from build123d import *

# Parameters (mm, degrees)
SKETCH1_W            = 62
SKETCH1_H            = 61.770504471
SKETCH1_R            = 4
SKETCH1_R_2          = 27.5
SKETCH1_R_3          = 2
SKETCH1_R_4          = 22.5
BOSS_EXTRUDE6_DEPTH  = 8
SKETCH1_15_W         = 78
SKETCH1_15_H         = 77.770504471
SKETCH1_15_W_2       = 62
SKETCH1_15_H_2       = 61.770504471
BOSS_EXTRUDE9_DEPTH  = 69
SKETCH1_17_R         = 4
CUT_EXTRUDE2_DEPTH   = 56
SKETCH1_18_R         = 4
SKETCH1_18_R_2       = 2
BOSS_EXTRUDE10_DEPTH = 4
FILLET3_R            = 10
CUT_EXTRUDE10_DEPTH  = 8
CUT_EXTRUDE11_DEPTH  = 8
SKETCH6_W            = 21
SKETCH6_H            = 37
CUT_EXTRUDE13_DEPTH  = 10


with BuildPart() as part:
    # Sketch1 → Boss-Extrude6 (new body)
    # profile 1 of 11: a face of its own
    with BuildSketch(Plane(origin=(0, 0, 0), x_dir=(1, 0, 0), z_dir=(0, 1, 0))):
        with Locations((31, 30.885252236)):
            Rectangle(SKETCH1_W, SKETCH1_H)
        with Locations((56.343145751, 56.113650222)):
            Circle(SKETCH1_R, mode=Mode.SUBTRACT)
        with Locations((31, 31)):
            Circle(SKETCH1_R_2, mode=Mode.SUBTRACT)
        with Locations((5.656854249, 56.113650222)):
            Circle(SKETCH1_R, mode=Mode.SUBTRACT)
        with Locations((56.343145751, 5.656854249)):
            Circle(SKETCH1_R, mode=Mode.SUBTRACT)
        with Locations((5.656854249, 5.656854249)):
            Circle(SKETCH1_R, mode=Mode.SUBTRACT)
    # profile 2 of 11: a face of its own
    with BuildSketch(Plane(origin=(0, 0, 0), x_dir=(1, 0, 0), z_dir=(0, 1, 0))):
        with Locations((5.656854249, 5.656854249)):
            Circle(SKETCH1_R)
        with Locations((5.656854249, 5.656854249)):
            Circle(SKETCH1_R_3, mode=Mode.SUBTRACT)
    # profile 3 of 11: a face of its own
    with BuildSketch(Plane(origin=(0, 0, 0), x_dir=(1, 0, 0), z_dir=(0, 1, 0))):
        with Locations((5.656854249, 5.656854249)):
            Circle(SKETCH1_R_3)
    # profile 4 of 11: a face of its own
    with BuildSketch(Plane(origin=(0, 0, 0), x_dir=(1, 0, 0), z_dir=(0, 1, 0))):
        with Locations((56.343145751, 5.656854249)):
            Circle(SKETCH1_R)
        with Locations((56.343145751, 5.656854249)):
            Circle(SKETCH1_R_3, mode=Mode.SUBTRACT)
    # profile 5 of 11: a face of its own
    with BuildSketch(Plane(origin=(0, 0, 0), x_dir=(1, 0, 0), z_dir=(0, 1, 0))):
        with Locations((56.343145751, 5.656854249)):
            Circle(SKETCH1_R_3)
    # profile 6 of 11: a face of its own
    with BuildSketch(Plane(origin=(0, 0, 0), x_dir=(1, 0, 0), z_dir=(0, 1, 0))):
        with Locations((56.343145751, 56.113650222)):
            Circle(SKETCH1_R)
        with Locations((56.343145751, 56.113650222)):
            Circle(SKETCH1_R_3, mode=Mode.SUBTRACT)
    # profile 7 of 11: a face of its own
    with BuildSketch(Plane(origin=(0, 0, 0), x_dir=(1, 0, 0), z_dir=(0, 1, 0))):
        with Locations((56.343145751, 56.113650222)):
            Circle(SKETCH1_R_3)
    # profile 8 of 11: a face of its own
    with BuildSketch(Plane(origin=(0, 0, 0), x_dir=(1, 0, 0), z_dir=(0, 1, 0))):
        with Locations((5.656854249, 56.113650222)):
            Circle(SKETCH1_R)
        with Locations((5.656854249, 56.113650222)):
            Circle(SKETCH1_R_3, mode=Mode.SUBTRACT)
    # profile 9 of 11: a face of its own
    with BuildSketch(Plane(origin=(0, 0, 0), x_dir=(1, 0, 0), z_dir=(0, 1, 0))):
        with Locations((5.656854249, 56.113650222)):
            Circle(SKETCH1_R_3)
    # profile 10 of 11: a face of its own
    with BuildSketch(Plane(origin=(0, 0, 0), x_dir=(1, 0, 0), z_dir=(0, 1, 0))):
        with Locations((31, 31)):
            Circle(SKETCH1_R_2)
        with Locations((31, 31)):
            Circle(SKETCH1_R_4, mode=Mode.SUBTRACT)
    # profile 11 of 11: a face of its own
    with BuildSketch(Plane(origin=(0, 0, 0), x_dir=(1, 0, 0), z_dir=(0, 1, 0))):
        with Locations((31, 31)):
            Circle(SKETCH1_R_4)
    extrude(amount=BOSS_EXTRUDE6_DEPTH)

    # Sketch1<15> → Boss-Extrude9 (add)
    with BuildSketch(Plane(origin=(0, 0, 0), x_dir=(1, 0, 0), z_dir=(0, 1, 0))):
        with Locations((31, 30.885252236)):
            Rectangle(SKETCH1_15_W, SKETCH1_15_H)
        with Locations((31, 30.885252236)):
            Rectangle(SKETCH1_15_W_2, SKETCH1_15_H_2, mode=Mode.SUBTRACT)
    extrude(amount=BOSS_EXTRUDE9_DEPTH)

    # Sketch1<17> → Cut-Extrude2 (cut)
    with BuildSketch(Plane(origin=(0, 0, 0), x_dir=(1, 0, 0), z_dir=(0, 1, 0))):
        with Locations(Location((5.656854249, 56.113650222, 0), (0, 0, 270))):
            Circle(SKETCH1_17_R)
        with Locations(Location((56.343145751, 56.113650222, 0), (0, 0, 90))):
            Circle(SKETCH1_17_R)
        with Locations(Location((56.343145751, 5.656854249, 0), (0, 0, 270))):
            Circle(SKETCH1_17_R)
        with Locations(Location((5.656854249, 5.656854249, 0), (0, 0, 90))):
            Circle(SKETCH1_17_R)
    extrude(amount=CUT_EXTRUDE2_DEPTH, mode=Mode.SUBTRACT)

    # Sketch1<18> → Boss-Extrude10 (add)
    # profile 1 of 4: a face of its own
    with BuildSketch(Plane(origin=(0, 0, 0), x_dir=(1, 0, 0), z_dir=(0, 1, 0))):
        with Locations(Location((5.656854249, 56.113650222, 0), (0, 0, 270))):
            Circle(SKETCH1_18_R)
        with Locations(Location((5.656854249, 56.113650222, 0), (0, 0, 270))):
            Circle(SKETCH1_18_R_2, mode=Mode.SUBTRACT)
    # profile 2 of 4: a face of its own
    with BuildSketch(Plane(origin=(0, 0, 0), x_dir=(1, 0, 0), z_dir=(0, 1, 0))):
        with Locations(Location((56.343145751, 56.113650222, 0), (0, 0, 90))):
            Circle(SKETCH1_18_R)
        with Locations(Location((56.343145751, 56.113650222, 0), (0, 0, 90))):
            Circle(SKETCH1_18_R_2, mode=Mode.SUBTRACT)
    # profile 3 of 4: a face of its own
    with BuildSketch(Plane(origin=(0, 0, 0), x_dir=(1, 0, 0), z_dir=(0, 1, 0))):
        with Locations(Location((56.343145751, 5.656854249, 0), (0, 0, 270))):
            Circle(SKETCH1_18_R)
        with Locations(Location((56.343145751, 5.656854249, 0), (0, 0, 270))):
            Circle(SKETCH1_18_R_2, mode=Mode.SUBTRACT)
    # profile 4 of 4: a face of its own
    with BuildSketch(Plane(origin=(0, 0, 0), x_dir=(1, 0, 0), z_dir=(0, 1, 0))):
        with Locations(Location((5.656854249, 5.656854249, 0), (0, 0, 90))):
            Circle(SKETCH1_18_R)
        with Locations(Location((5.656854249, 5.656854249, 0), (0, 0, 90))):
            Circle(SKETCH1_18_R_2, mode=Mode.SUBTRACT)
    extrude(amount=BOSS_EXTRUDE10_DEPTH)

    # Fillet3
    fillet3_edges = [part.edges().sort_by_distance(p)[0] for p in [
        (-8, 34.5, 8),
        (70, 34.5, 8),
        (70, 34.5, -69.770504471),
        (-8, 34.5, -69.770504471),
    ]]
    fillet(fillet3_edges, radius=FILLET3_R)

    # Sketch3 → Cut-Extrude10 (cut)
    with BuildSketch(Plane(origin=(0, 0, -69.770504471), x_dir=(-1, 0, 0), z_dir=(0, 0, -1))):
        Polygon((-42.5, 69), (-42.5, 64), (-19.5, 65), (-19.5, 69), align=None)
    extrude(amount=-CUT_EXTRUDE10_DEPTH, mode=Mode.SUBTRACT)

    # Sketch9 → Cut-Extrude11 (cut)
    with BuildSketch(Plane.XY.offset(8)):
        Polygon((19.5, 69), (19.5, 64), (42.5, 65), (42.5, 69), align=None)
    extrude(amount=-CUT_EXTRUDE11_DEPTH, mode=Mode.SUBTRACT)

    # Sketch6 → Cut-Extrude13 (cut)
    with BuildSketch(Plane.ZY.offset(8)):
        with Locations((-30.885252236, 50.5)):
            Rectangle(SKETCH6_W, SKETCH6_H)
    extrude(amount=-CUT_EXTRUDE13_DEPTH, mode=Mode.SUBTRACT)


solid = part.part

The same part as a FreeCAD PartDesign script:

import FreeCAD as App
import Part
import Sketcher
from FreeCAD import Vector
Q = App.Units.Quantity


def edges_at(feature, points):
    """Names of the edges that pass closest to the given points."""
    edges = feature.Shape.Edges
    near = lambda p: min(range(len(edges)), key=lambda i: edges[i].distToShape(Part.Vertex(*p))[0])
    return sorted({f"Edge{near(p) + 1}" for p in points})


def add_polygon(sketch, points):
    """Adds a closed chain of lines whose ends are joined by coincident constraints."""
    first, n = sketch.GeometryCount, len(points)
    for a, b in zip(points, points[1:] + points[:1]):
        sketch.addGeometry(Part.LineSegment(App.Vector(*a, 0), App.Vector(*b, 0)), False)
    for i in range(n):
        sketch.addConstraint(Sketcher.Constraint("Coincident", first + i, 2, first + (i + 1) % n, 1))

doc = App.newDocument("Part")
body = doc.addObject("PartDesign::Body", "Body")

# Sketch on XZ plane
sketch1 = doc.addObject("Sketcher::SketchObject", "Sketch")
body.addObject(sketch1)
sketch1.AttachmentSupport = (doc.XZ_Plane, [""])
sketch1.MapMode = "FlatFace"
add_polygon(sketch1, [(0, -61.770504), (0, 0), (62, 0), (62, -61.770504)])  # lines 0-3
sketch1.addConstraint(Sketcher.Constraint("Vertical", 0))
sketch1.addConstraint(Sketcher.Constraint("Horizontal", 1))
sketch1.addConstraint(Sketcher.Constraint("Vertical", 2))
sketch1.addConstraint(Sketcher.Constraint("Horizontal", 3))
sketch1.addConstraint(Sketcher.Constraint("Coincident", 0, 2, -1, 1))
sketch1.addConstraint(Sketcher.Constraint("DistanceX", 1, 1, 1, 2, Q("62 mm")))
sketch1.addConstraint(Sketcher.Constraint("DistanceY", 0, 1, 0, 2, Q("61.770504 mm")))
pad1 = doc.addObject("PartDesign::Pad", "Pad")
body.addObject(pad1)
pad1.Profile = sketch1
pad1.Length = 8
pad1.Reversed = True

# Sketch on XZ plane
sketch2 = doc.addObject("Sketcher::SketchObject", "Sketch001")
body.addObject(sketch2)
sketch2.AttachmentSupport = (doc.XZ_Plane, [""])
sketch2.MapMode = "FlatFace"
add_polygon(sketch2, [(-8, -69.770504), (-8, 8), (70, 8), (70, -69.770504)])  # lines 0-3
add_polygon(sketch2, [(62, 0), (0, 0), (0, -61.770504), (62, -61.770504)])  # lines 4-7
sketch2.addConstraint(Sketcher.Constraint("Vertical", 0))
sketch2.addConstraint(Sketcher.Constraint("Horizontal", 1))
sketch2.addConstraint(Sketcher.Constraint("Vertical", 2))
sketch2.addConstraint(Sketcher.Constraint("Horizontal", 3))
sketch2.addConstraint(Sketcher.Constraint("Horizontal", 4))
sketch2.addConstraint(Sketcher.Constraint("Vertical", 5))
sketch2.addConstraint(Sketcher.Constraint("Horizontal", 6))
sketch2.addConstraint(Sketcher.Constraint("Vertical", 7))
sketch2.addConstraint(Sketcher.Constraint("Coincident", 4, 2, -1, 1))
sketch2.addConstraint(Sketcher.Constraint("DistanceX", 1, 1, 1, 2, Q("78 mm")))
sketch2.addConstraint(Sketcher.Constraint("DistanceX", 4, 2, 4, 1, Q("62 mm")))
sketch2.addConstraint(Sketcher.Constraint("DistanceX", 0, 2, -1, 1, Q("8 mm")))
sketch2.addConstraint(Sketcher.Constraint("DistanceY", -1, 1, 0, 2, Q("8 mm")))
sketch2.addConstraint(Sketcher.Constraint("DistanceY", 3, 2, 5, 2, Q("8 mm")))
sketch2.addConstraint(Sketcher.Constraint("DistanceY", 0, 1, 0, 2, Q("77.770504 mm")))
pad2 = doc.addObject("PartDesign::Pad", "Pad001")
body.addObject(pad2)
pad2.Profile = sketch2
pad2.Length = 69
pad2.Reversed = True

# Sketch on XZ plane
sketch3 = doc.addObject("Sketcher::SketchObject", "Sketch002")
body.addObject(sketch3)
sketch3.AttachmentSupport = (doc.XZ_Plane, [""])
sketch3.MapMode = "FlatFace"
sketch3.addGeometry(Part.Circle(Vector(5.656854, -56.11365, 0), Vector(0, 0, 1), 4), False)
sketch3.addGeometry(Part.Circle(Vector(56.343146, -56.11365, 0), Vector(0, 0, 1), 4), False)
sketch3.addGeometry(Part.Circle(Vector(56.343146, -5.656854, 0), Vector(0, 0, 1), 4), False)
sketch3.addGeometry(Part.Circle(Vector(5.656854, -5.656854, 0), Vector(0, 0, 1), 4), False)
sketch3.addConstraint(Sketcher.Constraint("Equal", 0, 1))
sketch3.addConstraint(Sketcher.Constraint("Equal", 1, 2))
sketch3.addConstraint(Sketcher.Constraint("Equal", 2, 3))
sketch3.addConstraint(Sketcher.Constraint("Horizontal", 0, 3, 1, 3))
sketch3.addConstraint(Sketcher.Constraint("Horizontal", 2, 3, 3, 3))
sketch3.addConstraint(Sketcher.Constraint("Vertical", 1, 3, 2, 3))
sketch3.addConstraint(Sketcher.Constraint("Vertical", 0, 3, 3, 3))
sketch3.addConstraint(Sketcher.Constraint("Diameter", 0, Q("8 mm")))
sketch3.addConstraint(Sketcher.Constraint("DistanceY", 0, 3, -1, 1, Q("56.11365 mm")))
sketch3.addConstraint(Sketcher.Constraint("DistanceX", 0, 3, 1, 3, Q("50.686292 mm")))
sketch3.addConstraint(Sketcher.Constraint("DistanceX", -1, 1, 0, 3, Q("5.656854 mm")))
sketch3.addConstraint(Sketcher.Constraint("DistanceY", 2, 3, -1, 1, Q("5.656854 mm")))
pocket1 = doc.addObject("PartDesign::Pocket", "Pocket")
body.addObject(pocket1)
pocket1.Profile = sketch3
pocket1.Length = 56

# Sketch on XZ plane
sketch4 = doc.addObject("Sketcher::SketchObject", "Sketch003")
body.addObject(sketch4)
sketch4.AttachmentSupport = (doc.XZ_Plane, [""])
sketch4.MapMode = "FlatFace"
sketch4.addGeometry(Part.Circle(Vector(5.656854, -56.11365, 0), Vector(0, 0, 1), 4), False)
sketch4.addGeometry(Part.Circle(Vector(5.656854, -56.11365, 0), Vector(0, 0, 1), 2), False)
sketch4.addGeometry(Part.Circle(Vector(56.343146, -56.11365, 0), Vector(0, 0, 1), 4), False)
sketch4.addGeometry(Part.Circle(Vector(56.343146, -56.11365, 0), Vector(0, 0, 1), 2), False)
sketch4.addGeometry(Part.Circle(Vector(56.343146, -5.656854, 0), Vector(0, 0, 1), 4), False)
sketch4.addGeometry(Part.Circle(Vector(56.343146, -5.656854, 0), Vector(0, 0, 1), 2), False)
sketch4.addGeometry(Part.Circle(Vector(5.656854, -5.656854, 0), Vector(0, 0, 1), 4), False)
sketch4.addGeometry(Part.Circle(Vector(5.656854, -5.656854, 0), Vector(0, 0, 1), 2), False)
sketch4.addConstraint(Sketcher.Constraint("Coincident", 1, 3, 0, 3))
sketch4.addConstraint(Sketcher.Constraint("Coincident", 3, 3, 2, 3))
sketch4.addConstraint(Sketcher.Constraint("Coincident", 5, 3, 4, 3))
sketch4.addConstraint(Sketcher.Constraint("Coincident", 7, 3, 6, 3))
sketch4.addConstraint(Sketcher.Constraint("Equal", 0, 2))
sketch4.addConstraint(Sketcher.Constraint("Equal", 1, 3))
sketch4.addConstraint(Sketcher.Constraint("Equal", 2, 4))
sketch4.addConstraint(Sketcher.Constraint("Equal", 3, 5))
sketch4.addConstraint(Sketcher.Constraint("Equal", 4, 6))
sketch4.addConstraint(Sketcher.Constraint("Equal", 5, 7))
sketch4.addConstraint(Sketcher.Constraint("Horizontal", 1, 3, 2, 3))
sketch4.addConstraint(Sketcher.Constraint("Horizontal", 5, 3, 6, 3))
sketch4.addConstraint(Sketcher.Constraint("Vertical", 3, 3, 4, 3))
sketch4.addConstraint(Sketcher.Constraint("Vertical", 1, 3, 6, 3))
sketch4.addConstraint(Sketcher.Constraint("Diameter", 0, Q("8 mm")))
sketch4.addConstraint(Sketcher.Constraint("Diameter", 1, Q("4 mm")))
sketch4.addConstraint(Sketcher.Constraint("DistanceY", 0, 3, -1, 1, Q("56.11365 mm")))
sketch4.addConstraint(Sketcher.Constraint("DistanceX", 0, 3, 2, 3, Q("50.686292 mm")))
sketch4.addConstraint(Sketcher.Constraint("DistanceX", -1, 1, 0, 3, Q("5.656854 mm")))
sketch4.addConstraint(Sketcher.Constraint("DistanceY", 4, 3, -1, 1, Q("5.656854 mm")))
pad3 = doc.addObject("PartDesign::Pad", "Pad002")
body.addObject(pad3)
pad3.Profile = sketch4
pad3.Length = 4
pad3.Reversed = True
doc.recompute()

fillet = doc.addObject("PartDesign::Fillet", "Fillet")
body.addObject(fillet)
fillet.Base = (pad3, edges_at(pad3, [
    (-8, 34.5, 8),
    (70, 34.5, 8),
    (70, 34.5, -69.771),
    (-8, 34.5, -69.771),
]))
fillet.Radius = 10

# Sketch on XY plane
sketch5 = doc.addObject("Sketcher::SketchObject", "Sketch004")
body.addObject(sketch5)
sketch5.AttachmentSupport = (doc.XY_Plane, [""])
sketch5.MapMode = "FlatFace"
sketch5.AttachmentOffset = App.Placement(Vector(0, 0, -69.770504), App.Rotation())
add_polygon(sketch5, [(42.5, 69), (42.5, 64), (19.5, 65), (19.5, 69)])  # lines 0-3
sketch5.addConstraint(Sketcher.Constraint("Vertical", 0))
sketch5.addConstraint(Sketcher.Constraint("Vertical", 2))
sketch5.addConstraint(Sketcher.Constraint("Horizontal", 3))
sketch5.addConstraint(Sketcher.Constraint("DistanceX", 3, 1, 3, 2, Q("23 mm")))
sketch5.addConstraint(Sketcher.Constraint("DistanceY", 0, 2, 0, 1, Q("5 mm")))
sketch5.addConstraint(Sketcher.Constraint("DistanceY", 2, 1, 2, 2, Q("4 mm")))
sketch5.addConstraint(Sketcher.Constraint("DistanceY", -1, 1, 0, 2, Q("64 mm")))
sketch5.addConstraint(Sketcher.Constraint("DistanceX", -1, 1, 0, 2, Q("42.5 mm")))
pocket2 = doc.addObject("PartDesign::Pocket", "Pocket001")
body.addObject(pocket2)
pocket2.Profile = sketch5
pocket2.Length = 8
pocket2.Reversed = True

# Sketch on XY plane
sketch6 = doc.addObject("Sketcher::SketchObject", "Sketch005")
body.addObject(sketch6)
sketch6.AttachmentSupport = (doc.XY_Plane, [""])
sketch6.MapMode = "FlatFace"
sketch6.AttachmentOffset = App.Placement(Vector(0, 0, 8), App.Rotation())
add_polygon(sketch6, [(19.5, 69), (19.5, 64), (42.5, 65), (42.5, 69)])  # lines 0-3
sketch6.addConstraint(Sketcher.Constraint("Vertical", 0))
sketch6.addConstraint(Sketcher.Constraint("Vertical", 2))
sketch6.addConstraint(Sketcher.Constraint("Horizontal", 3))
sketch6.addConstraint(Sketcher.Constraint("DistanceX", 3, 2, 3, 1, Q("23 mm")))
sketch6.addConstraint(Sketcher.Constraint("DistanceY", 0, 2, 0, 1, Q("5 mm")))
sketch6.addConstraint(Sketcher.Constraint("DistanceY", 2, 1, 2, 2, Q("4 mm")))
sketch6.addConstraint(Sketcher.Constraint("DistanceY", -1, 1, 0, 2, Q("64 mm")))
sketch6.addConstraint(Sketcher.Constraint("DistanceX", -1, 1, 0, 2, Q("19.5 mm")))
pocket3 = doc.addObject("PartDesign::Pocket", "Pocket002")
body.addObject(pocket3)
pocket3.Profile = sketch6
pocket3.Length = 8

# Sketch on YZ plane
sketch7 = doc.addObject("Sketcher::SketchObject", "Sketch006")
body.addObject(sketch7)
sketch7.AttachmentSupport = (doc.YZ_Plane, [""])
sketch7.MapMode = "FlatFace"
sketch7.AttachmentOffset = App.Placement(Vector(0, 0, -8), App.Rotation())
add_polygon(sketch7, [(69, -41.385252), (32, -41.385252), (32, -20.385252), (69, -20.385252)])  # lines 0-3
sketch7.addConstraint(Sketcher.Constraint("Horizontal", 0))
sketch7.addConstraint(Sketcher.Constraint("Vertical", 1))
sketch7.addConstraint(Sketcher.Constraint("Horizontal", 2))
sketch7.addConstraint(Sketcher.Constraint("Vertical", 3))
sketch7.addConstraint(Sketcher.Constraint("DistanceX", 0, 2, 0, 1, Q("37 mm")))
sketch7.addConstraint(Sketcher.Constraint("DistanceY", 1, 1, 1, 2, Q("21 mm")))
sketch7.addConstraint(Sketcher.Constraint("DistanceX", -1, 1, 0, 2, Q("32 mm")))
sketch7.addConstraint(Sketcher.Constraint("DistanceY", 0, 2, -1, 1, Q("41.385252 mm")))
pocket4 = doc.addObject("PartDesign::Pocket", "Pocket003")
body.addObject(pocket4)
pocket4.Profile = sketch7
pocket4.Length = 10
pocket4.Reversed = True

doc.recompute()
